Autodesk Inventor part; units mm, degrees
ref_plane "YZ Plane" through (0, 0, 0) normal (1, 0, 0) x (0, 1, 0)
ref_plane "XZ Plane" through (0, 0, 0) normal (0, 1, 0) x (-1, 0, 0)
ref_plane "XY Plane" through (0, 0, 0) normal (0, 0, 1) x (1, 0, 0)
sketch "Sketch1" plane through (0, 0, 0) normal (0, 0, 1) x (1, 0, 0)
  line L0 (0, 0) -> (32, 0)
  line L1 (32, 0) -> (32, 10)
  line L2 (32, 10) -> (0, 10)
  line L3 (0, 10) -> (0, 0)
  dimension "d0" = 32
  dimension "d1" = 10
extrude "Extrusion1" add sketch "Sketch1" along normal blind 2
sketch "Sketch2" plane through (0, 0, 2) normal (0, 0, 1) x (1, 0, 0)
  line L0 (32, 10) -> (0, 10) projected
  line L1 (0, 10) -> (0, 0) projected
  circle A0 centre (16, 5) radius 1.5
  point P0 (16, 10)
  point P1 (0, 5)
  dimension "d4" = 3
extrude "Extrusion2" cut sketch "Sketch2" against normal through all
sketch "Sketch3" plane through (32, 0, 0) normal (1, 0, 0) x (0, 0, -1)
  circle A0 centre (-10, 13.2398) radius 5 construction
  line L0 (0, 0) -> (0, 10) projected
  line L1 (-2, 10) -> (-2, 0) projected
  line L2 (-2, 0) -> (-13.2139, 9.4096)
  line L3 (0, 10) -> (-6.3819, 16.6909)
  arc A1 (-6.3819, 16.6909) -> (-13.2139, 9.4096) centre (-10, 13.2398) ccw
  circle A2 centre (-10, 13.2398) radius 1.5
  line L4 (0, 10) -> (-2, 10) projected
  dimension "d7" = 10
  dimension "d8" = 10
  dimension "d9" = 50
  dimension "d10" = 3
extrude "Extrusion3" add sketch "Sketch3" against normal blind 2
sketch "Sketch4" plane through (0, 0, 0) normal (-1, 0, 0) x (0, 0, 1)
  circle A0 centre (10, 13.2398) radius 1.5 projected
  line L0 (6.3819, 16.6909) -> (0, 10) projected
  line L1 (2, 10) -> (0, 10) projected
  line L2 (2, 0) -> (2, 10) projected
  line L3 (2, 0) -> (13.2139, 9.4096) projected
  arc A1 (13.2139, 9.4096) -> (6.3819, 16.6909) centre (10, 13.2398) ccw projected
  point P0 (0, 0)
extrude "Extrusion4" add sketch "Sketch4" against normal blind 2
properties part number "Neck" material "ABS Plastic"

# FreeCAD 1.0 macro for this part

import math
import FreeCAD as App
import Part
import Sketcher
Q = App.Units.Quantity

doc = App.newDocument("Part")
body = doc.addObject("PartDesign::Body", "Body")

sketch1 = body.newObject("Sketcher::SketchObject", "Sketch")
sketch1.AttachmentSupport = (doc.getObject("XY_Plane"), [""])
sketch1.MapMode = "FlatFace"
sketch1.addGeometry([
    Part.LineSegment(App.Vector(0, 10, 0), App.Vector(0, 0, 0)),
    Part.LineSegment(App.Vector(0, 0, 0), App.Vector(32, 0, 0)),
    Part.LineSegment(App.Vector(32, 0, 0), App.Vector(32, 10, 0)),
    Part.LineSegment(App.Vector(32, 10, 0), App.Vector(0, 10, 0)),
], False)
sketch1.addConstraint([
    Sketcher.Constraint("Coincident", 0, 2, 1, 1),
    Sketcher.Constraint("Coincident", 1, 2, 2, 1),
    Sketcher.Constraint("Coincident", 2, 2, 3, 1),
    Sketcher.Constraint("Coincident", 3, 2, 0, 1),
    Sketcher.Constraint("Vertical", 0),
    Sketcher.Constraint("Horizontal", 1),
    Sketcher.Constraint("Vertical", 2),
    Sketcher.Constraint("Horizontal", 3),
    Sketcher.Constraint("Coincident", 0, 2, -1, 1),
    Sketcher.Constraint("DistanceX", 1, 1, 1, 2, 32.0),
    Sketcher.Constraint("DistanceY", 0, 2, 0, 1, 10.0),
])
pad1 = body.newObject("PartDesign::Pad", "Pad")
pad1.Profile = sketch1
pad1.Length = 2

sketch2 = body.newObject("Sketcher::SketchObject", "Sketch001")
sketch2.AttachmentSupport = (doc.getObject("XY_Plane"), [""])
sketch2.MapMode = "FlatFace"
sketch2.AttachmentOffset = App.Placement(App.Vector(0, 0, 2), App.Rotation())
sketch2.addGeometry(Part.Circle(App.Vector(16, 5, 0), App.Vector(0, 0, 1), 1.5), False)
sketch2.addConstraint([
    Sketcher.Constraint("Diameter", 0, 3.0),
    Sketcher.Constraint("DistanceX", -1, 1, 0, 3, 16.0),
    Sketcher.Constraint("DistanceY", -1, 1, 0, 3, 5.0),
])
pocket1 = body.newObject("PartDesign::Pocket", "Pocket")
pocket1.Profile = sketch2
pocket1.Type = "ThroughAll"

sketch3 = body.newObject("Sketcher::SketchObject", "Sketch002")
sketch3.AttachmentSupport = (doc.getObject("YZ_Plane"), [""])
sketch3.MapMode = "FlatFace"
sketch3.AttachmentOffset = App.Placement(App.Vector(0, 0, 32), App.Rotation())
sketch3.addGeometry([
    Part.LineSegment(App.Vector(0, 2, 0), App.Vector(10, 2, 0)),
    Part.LineSegment(App.Vector(10, 2, 0), App.Vector(10, 0, 0)),
    Part.LineSegment(App.Vector(10, 0, 0), App.Vector(16.7, 6.4, 0)),
    Part.ArcOfCircle(Part.Circle(App.Vector(13.2, 10, 0), App.Vector(0, 0, 1), 5), math.radians(-46), math.radians(140)),
    Part.LineSegment(App.Vector(9.4, 13.2, 0), App.Vector(0, 2, 0)),
    Part.Circle(App.Vector(13.2, 10, 0), App.Vector(0, 0, 1), 1.5),
], False)
sketch3.addConstraint([
    Sketcher.Constraint("Coincident", 0, 2, 1, 1),
    Sketcher.Constraint("Coincident", 1, 2, 2, 1),
    Sketcher.Constraint("Tangent", 2, 2, 3, 1),
    Sketcher.Constraint("Tangent", 3, 2, 4, 1),
    Sketcher.Constraint("Coincident", 4, 2, 0, 1),
    Sketcher.Constraint("Horizontal", 0),
    Sketcher.Constraint("Vertical", 1),
    Sketcher.Constraint("Coincident", 5, 3, 3, 3),
    Sketcher.Constraint("PointOnObject", 1, 2, -1),
    Sketcher.Constraint("PointOnObject", 4, 2, -2),
    Sketcher.Constraint("Diameter", 5, 3.0),
    Sketcher.Constraint("Radius", 3, 5.0),
    Sketcher.Constraint("DistanceX", 0, 1, 0, 2, 10.0),
    Sketcher.Constraint("DistanceY", -1, 1, 3, 3, 10.0),
    Sketcher.Constraint("DistanceY", 1, 2, 1, 1, 2.0),
    Sketcher.Constraint("Angle", 4, Q("-130 deg")),
])
pad2 = body.newObject("PartDesign::Pad", "Pad001")
pad2.Profile = sketch3
pad2.Length = 2
pad2.Reversed = True

sketch4 = body.newObject("Sketcher::SketchObject", "Sketch003")
sketch4.AttachmentSupport = (doc.getObject("YZ_Plane"), [""])
sketch4.MapMode = "FlatFace"
sketch4.addGeometry([
    Part.ArcOfCircle(Part.Circle(App.Vector(13.2, 10, 0), App.Vector(0, 0, 1), 5), math.radians(-46), math.radians(140)),
    Part.LineSegment(App.Vector(16.7, 6.4, 0), App.Vector(10, 0, 0)),
    Part.LineSegment(App.Vector(10, 0, 0), App.Vector(10, 2, 0)),
    Part.LineSegment(App.Vector(10, 2, 0), App.Vector(0, 2, 0)),
    Part.LineSegment(App.Vector(0, 2, 0), App.Vector(9.4, 13.2, 0)),
    Part.Circle(App.Vector(13.2, 10, 0), App.Vector(0, 0, 1), 1.5),
], False)
sketch4.addConstraint([
    Sketcher.Constraint("Tangent", 0, 1, 1, 1),
    Sketcher.Constraint("Coincident", 1, 2, 2, 1),
    Sketcher.Constraint("Coincident", 2, 2, 3, 1),
    Sketcher.Constraint("Coincident", 3, 2, 4, 1),
    Sketcher.Constraint("Tangent", 4, 2, 0, 2),
    Sketcher.Constraint("Vertical", 2),
    Sketcher.Constraint("Horizontal", 3),
    Sketcher.Constraint("Coincident", 5, 3, 0, 3),
    Sketcher.Constraint("PointOnObject", 1, 2, -1),
    Sketcher.Constraint("PointOnObject", 3, 2, -2),
    Sketcher.Constraint("Diameter", 5, 3.0),
    Sketcher.Constraint("Radius", 0, 5.0),
    Sketcher.Constraint("DistanceX", 3, 2, 3, 1, 10.0),
    Sketcher.Constraint("DistanceY", 2, 1, 2, 2, 2.0),
    Sketcher.Constraint("Angle", 4, Q("50 deg")),
    Sketcher.Constraint("DistanceY", -1, 1, 0, 3, 10.0),
])
pad3 = body.newObject("PartDesign::Pad", "Pad002")
pad3.Profile = sketch4
pad3.Length = 2

doc.recompute()
